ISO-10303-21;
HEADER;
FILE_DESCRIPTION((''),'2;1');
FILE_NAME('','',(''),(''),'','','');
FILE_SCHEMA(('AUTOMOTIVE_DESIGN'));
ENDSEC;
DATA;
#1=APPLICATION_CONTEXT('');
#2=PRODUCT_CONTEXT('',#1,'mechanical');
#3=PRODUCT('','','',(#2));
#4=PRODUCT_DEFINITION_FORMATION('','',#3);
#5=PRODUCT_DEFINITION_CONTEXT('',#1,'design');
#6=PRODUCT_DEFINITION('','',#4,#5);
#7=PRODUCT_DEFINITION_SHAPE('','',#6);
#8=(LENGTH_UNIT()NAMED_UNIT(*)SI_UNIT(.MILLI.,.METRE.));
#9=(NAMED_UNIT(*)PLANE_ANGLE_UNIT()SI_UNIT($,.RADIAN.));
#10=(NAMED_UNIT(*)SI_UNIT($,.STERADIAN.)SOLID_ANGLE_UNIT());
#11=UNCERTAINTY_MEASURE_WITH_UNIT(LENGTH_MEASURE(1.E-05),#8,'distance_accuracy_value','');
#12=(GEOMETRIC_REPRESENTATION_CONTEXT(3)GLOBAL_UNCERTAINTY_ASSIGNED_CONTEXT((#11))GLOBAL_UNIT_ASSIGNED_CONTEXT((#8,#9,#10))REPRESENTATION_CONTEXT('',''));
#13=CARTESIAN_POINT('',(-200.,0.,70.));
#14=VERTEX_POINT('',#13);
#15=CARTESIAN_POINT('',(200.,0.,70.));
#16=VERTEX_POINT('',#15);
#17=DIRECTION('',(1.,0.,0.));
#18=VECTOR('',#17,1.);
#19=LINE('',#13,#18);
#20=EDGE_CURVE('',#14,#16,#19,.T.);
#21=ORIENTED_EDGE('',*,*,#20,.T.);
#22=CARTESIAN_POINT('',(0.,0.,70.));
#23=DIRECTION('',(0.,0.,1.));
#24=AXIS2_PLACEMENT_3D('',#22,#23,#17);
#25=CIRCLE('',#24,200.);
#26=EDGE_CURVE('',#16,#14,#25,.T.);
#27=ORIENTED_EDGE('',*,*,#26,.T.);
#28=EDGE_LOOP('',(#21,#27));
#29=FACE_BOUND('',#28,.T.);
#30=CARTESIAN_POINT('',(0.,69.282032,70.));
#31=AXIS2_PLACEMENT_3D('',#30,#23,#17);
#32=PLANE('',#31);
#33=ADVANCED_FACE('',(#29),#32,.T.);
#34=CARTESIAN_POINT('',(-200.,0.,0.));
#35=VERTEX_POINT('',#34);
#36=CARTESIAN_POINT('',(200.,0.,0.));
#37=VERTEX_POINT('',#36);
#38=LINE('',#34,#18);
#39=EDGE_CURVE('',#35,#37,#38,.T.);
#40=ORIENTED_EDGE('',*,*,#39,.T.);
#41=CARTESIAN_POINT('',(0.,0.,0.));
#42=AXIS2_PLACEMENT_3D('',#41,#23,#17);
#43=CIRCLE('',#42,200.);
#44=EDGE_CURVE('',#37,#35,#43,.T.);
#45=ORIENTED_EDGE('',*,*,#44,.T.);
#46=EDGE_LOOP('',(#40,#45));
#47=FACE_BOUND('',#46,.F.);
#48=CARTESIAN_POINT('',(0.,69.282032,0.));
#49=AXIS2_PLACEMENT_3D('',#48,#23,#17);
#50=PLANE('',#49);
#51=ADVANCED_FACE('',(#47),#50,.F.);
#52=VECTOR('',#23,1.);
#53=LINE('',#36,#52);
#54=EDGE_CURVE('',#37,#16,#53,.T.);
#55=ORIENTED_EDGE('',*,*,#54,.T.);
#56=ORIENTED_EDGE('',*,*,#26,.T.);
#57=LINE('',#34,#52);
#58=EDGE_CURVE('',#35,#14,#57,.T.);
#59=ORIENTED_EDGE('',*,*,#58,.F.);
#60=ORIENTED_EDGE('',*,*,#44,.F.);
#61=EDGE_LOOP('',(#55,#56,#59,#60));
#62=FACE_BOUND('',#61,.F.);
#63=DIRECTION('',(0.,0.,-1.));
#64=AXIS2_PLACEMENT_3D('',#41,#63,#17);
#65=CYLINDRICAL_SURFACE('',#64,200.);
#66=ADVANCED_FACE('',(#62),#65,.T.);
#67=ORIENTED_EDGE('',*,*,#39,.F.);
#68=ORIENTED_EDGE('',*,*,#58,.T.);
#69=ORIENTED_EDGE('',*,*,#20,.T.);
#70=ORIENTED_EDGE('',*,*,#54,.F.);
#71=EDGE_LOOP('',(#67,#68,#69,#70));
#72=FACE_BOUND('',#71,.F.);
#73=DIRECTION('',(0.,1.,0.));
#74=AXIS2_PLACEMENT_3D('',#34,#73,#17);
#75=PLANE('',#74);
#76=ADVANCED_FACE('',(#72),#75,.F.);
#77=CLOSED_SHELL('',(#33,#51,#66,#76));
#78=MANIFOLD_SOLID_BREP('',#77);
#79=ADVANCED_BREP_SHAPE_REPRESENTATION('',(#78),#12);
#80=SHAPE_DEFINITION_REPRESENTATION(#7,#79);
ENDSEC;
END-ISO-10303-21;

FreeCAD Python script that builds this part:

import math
import FreeCAD as App
import Part
import Sketcher
Q = App.Units.Quantity

doc = App.newDocument("Part")
params = doc.addObject("Spreadsheet::Sheet", "Params")
for row, (alias, value) in enumerate([
    ("sketch1_radius", "200 mm"),
    ("pad1_length", "70 mm"),
], start=1):
    params.set(f"A{row}", alias)
    params.set(f"B{row}", "=" + value)
    params.setAlias(f"B{row}", alias)

body = doc.addObject("PartDesign::Body", "Body")

# Sketch on XY plane
sketch1 = body.newObject("Sketcher::SketchObject", "Sketch")
sketch1.AttachmentSupport = (doc.getObject("XY_Plane"), [""])
sketch1.MapMode = "FlatFace"
sketch1.addGeometry([
    Part.ArcOfCircle(Part.Circle(App.Vector(0, 0, 0), App.Vector(0, 0, 1), 200), math.radians(0), math.radians(180)),
    Part.LineSegment(App.Vector(-200, 0, 0), App.Vector(200, 0, 0)),
], False)
sketch1.addConstraint([
    Sketcher.Constraint("Coincident", 0, 1, 1, 2),
    Sketcher.Constraint("Coincident", 1, 1, 0, 2),
    Sketcher.Constraint("Horizontal", 1),
    Sketcher.Constraint("Coincident", 0, 3, -1, 1),
    Sketcher.Constraint("PointOnObject", 0, 1, -1),
    Sketcher.Constraint("Radius", 0, Q("200 mm")),
])
sketch1.setExpression("Constraints[5]", "Params.sketch1_radius")
pad1 = body.newObject("PartDesign::Pad", "Pad")
pad1.Profile = sketch1
pad1.setExpression("Length", "Params.pad1_length")

doc.recompute()
